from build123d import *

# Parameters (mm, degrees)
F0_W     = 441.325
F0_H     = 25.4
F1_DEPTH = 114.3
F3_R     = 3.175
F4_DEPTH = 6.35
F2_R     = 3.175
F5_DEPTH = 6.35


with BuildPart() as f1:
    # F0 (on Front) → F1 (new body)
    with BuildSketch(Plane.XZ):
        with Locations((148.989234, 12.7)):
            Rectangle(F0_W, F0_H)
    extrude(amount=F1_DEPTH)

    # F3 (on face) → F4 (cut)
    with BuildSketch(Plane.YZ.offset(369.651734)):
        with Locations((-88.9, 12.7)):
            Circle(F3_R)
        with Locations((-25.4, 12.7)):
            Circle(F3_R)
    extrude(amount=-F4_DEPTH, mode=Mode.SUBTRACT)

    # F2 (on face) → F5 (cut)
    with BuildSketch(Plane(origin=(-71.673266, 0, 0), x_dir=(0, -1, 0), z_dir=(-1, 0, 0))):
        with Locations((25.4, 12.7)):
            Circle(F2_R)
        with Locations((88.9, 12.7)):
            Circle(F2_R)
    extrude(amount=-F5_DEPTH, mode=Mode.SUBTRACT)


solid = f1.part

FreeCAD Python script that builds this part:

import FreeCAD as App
import Part
import Sketcher
from FreeCAD import Vector
Q = App.Units.Quantity

doc = App.newDocument("Part")
body = doc.addObject("PartDesign::Body", "Body")

# Sketch on XZ plane
sketch1 = doc.addObject("Sketcher::SketchObject", "Sketch")
body.addObject(sketch1)
sketch1.AttachmentSupport = (doc.XZ_Plane, [""])
sketch1.MapMode = "FlatFace"
sketch1.addGeometry([
    Part.LineSegment(Vector(-72, 25, 0), Vector(-72, 0, 0)),
    Part.LineSegment(Vector(-72, 0, 0), Vector(370, 0, 0)),
    Part.LineSegment(Vector(370, 0, 0), Vector(370, 25, 0)),
    Part.LineSegment(Vector(370, 25, 0), Vector(-72, 25, 0)),
], False)
sketch1.addConstraint([
    Sketcher.Constraint("Coincident", 0, 2, 1, 1),
    Sketcher.Constraint("Coincident", 1, 2, 2, 1),
    Sketcher.Constraint("Coincident", 2, 2, 3, 1),
    Sketcher.Constraint("Coincident", 3, 2, 0, 1),
    Sketcher.Constraint("Vertical", 0),
    Sketcher.Constraint("Horizontal", 1),
    Sketcher.Constraint("Vertical", 2),
    Sketcher.Constraint("Horizontal", 3),
    Sketcher.Constraint("PointOnObject", 0, 2, -1),
    Sketcher.Constraint("DistanceY", 0, 2, 0, 1, Q("1 in")),
    Sketcher.Constraint("DistanceX", 1, 1, 1, 2, Q("17.375 in")),
    Sketcher.Constraint("DistanceX", 0, 2, -1, 1, Q("71.673266 mm")),
])
pad1 = doc.addObject("PartDesign::Pad", "Pad")
body.addObject(pad1)
pad1.Profile = sketch1
pad1.Length = Q("4.5 in")

# Sketch on YZ plane
sketch2 = doc.addObject("Sketcher::SketchObject", "Sketch001")
body.addObject(sketch2)
sketch2.AttachmentSupport = (doc.YZ_Plane, [""])
sketch2.MapMode = "FlatFace"
sketch2.AttachmentOffset = App.Placement(Vector(0, 0, 369.651734), App.Rotation())
sketch2.addGeometry([
    Part.Circle(Vector(-88.9, 12.7, 0), Vector(0, 0, 1), 3.2),
    Part.Circle(Vector(-25.4, 12.7, 0), Vector(0, 0, 1), 3.2),
], False)
sketch2.addConstraint([
    Sketcher.Constraint("Equal", 0, 1),
    Sketcher.Constraint("Horizontal", 0, 3, 1, 3),
    Sketcher.Constraint("Diameter", 0, Q("0.25 in")),
    Sketcher.Constraint("DistanceX", 1, 3, -1, 1, Q("1 in")),
    Sketcher.Constraint("DistanceX", 0, 3, -1, 1, Q("3.5 in")),
    Sketcher.Constraint("DistanceY", -1, 1, 0, 3, Q("0.5 in")),
])
pocket1 = doc.addObject("PartDesign::Pocket", "Pocket")
body.addObject(pocket1)
pocket1.Profile = sketch2
pocket1.Length = Q("0.25 in")

# Sketch on YZ plane
sketch3 = doc.addObject("Sketcher::SketchObject", "Sketch002")
body.addObject(sketch3)
sketch3.AttachmentSupport = (doc.YZ_Plane, [""])
sketch3.MapMode = "FlatFace"
sketch3.AttachmentOffset = App.Placement(Vector(0, 0, -71.673266), App.Rotation())
sketch3.addGeometry([
    Part.Circle(Vector(-25.4, 12.7, 0), Vector(0, 0, 1), 3.2),
    Part.Circle(Vector(-88.9, 12.7, 0), Vector(0, 0, 1), 3.2),
], False)
sketch3.addConstraint([
    Sketcher.Constraint("Equal", 0, 1),
    Sketcher.Constraint("Horizontal", 0, 3, 1, 3),
    Sketcher.Constraint("Diameter", 0, Q("0.25 in")),
    Sketcher.Constraint("DistanceX", 0, 3, -1, 1, Q("1 in")),
    Sketcher.Constraint("DistanceY", -1, 1, 0, 3, Q("0.5 in")),
    Sketcher.Constraint("DistanceX", 1, 3, -1, 1, Q("3.5 in")),
])
pocket2 = doc.addObject("PartDesign::Pocket", "Pocket001")
body.addObject(pocket2)
pocket2.Profile = sketch3
pocket2.Length = Q("0.25 in")
pocket2.Reversed = True

doc.recompute()
